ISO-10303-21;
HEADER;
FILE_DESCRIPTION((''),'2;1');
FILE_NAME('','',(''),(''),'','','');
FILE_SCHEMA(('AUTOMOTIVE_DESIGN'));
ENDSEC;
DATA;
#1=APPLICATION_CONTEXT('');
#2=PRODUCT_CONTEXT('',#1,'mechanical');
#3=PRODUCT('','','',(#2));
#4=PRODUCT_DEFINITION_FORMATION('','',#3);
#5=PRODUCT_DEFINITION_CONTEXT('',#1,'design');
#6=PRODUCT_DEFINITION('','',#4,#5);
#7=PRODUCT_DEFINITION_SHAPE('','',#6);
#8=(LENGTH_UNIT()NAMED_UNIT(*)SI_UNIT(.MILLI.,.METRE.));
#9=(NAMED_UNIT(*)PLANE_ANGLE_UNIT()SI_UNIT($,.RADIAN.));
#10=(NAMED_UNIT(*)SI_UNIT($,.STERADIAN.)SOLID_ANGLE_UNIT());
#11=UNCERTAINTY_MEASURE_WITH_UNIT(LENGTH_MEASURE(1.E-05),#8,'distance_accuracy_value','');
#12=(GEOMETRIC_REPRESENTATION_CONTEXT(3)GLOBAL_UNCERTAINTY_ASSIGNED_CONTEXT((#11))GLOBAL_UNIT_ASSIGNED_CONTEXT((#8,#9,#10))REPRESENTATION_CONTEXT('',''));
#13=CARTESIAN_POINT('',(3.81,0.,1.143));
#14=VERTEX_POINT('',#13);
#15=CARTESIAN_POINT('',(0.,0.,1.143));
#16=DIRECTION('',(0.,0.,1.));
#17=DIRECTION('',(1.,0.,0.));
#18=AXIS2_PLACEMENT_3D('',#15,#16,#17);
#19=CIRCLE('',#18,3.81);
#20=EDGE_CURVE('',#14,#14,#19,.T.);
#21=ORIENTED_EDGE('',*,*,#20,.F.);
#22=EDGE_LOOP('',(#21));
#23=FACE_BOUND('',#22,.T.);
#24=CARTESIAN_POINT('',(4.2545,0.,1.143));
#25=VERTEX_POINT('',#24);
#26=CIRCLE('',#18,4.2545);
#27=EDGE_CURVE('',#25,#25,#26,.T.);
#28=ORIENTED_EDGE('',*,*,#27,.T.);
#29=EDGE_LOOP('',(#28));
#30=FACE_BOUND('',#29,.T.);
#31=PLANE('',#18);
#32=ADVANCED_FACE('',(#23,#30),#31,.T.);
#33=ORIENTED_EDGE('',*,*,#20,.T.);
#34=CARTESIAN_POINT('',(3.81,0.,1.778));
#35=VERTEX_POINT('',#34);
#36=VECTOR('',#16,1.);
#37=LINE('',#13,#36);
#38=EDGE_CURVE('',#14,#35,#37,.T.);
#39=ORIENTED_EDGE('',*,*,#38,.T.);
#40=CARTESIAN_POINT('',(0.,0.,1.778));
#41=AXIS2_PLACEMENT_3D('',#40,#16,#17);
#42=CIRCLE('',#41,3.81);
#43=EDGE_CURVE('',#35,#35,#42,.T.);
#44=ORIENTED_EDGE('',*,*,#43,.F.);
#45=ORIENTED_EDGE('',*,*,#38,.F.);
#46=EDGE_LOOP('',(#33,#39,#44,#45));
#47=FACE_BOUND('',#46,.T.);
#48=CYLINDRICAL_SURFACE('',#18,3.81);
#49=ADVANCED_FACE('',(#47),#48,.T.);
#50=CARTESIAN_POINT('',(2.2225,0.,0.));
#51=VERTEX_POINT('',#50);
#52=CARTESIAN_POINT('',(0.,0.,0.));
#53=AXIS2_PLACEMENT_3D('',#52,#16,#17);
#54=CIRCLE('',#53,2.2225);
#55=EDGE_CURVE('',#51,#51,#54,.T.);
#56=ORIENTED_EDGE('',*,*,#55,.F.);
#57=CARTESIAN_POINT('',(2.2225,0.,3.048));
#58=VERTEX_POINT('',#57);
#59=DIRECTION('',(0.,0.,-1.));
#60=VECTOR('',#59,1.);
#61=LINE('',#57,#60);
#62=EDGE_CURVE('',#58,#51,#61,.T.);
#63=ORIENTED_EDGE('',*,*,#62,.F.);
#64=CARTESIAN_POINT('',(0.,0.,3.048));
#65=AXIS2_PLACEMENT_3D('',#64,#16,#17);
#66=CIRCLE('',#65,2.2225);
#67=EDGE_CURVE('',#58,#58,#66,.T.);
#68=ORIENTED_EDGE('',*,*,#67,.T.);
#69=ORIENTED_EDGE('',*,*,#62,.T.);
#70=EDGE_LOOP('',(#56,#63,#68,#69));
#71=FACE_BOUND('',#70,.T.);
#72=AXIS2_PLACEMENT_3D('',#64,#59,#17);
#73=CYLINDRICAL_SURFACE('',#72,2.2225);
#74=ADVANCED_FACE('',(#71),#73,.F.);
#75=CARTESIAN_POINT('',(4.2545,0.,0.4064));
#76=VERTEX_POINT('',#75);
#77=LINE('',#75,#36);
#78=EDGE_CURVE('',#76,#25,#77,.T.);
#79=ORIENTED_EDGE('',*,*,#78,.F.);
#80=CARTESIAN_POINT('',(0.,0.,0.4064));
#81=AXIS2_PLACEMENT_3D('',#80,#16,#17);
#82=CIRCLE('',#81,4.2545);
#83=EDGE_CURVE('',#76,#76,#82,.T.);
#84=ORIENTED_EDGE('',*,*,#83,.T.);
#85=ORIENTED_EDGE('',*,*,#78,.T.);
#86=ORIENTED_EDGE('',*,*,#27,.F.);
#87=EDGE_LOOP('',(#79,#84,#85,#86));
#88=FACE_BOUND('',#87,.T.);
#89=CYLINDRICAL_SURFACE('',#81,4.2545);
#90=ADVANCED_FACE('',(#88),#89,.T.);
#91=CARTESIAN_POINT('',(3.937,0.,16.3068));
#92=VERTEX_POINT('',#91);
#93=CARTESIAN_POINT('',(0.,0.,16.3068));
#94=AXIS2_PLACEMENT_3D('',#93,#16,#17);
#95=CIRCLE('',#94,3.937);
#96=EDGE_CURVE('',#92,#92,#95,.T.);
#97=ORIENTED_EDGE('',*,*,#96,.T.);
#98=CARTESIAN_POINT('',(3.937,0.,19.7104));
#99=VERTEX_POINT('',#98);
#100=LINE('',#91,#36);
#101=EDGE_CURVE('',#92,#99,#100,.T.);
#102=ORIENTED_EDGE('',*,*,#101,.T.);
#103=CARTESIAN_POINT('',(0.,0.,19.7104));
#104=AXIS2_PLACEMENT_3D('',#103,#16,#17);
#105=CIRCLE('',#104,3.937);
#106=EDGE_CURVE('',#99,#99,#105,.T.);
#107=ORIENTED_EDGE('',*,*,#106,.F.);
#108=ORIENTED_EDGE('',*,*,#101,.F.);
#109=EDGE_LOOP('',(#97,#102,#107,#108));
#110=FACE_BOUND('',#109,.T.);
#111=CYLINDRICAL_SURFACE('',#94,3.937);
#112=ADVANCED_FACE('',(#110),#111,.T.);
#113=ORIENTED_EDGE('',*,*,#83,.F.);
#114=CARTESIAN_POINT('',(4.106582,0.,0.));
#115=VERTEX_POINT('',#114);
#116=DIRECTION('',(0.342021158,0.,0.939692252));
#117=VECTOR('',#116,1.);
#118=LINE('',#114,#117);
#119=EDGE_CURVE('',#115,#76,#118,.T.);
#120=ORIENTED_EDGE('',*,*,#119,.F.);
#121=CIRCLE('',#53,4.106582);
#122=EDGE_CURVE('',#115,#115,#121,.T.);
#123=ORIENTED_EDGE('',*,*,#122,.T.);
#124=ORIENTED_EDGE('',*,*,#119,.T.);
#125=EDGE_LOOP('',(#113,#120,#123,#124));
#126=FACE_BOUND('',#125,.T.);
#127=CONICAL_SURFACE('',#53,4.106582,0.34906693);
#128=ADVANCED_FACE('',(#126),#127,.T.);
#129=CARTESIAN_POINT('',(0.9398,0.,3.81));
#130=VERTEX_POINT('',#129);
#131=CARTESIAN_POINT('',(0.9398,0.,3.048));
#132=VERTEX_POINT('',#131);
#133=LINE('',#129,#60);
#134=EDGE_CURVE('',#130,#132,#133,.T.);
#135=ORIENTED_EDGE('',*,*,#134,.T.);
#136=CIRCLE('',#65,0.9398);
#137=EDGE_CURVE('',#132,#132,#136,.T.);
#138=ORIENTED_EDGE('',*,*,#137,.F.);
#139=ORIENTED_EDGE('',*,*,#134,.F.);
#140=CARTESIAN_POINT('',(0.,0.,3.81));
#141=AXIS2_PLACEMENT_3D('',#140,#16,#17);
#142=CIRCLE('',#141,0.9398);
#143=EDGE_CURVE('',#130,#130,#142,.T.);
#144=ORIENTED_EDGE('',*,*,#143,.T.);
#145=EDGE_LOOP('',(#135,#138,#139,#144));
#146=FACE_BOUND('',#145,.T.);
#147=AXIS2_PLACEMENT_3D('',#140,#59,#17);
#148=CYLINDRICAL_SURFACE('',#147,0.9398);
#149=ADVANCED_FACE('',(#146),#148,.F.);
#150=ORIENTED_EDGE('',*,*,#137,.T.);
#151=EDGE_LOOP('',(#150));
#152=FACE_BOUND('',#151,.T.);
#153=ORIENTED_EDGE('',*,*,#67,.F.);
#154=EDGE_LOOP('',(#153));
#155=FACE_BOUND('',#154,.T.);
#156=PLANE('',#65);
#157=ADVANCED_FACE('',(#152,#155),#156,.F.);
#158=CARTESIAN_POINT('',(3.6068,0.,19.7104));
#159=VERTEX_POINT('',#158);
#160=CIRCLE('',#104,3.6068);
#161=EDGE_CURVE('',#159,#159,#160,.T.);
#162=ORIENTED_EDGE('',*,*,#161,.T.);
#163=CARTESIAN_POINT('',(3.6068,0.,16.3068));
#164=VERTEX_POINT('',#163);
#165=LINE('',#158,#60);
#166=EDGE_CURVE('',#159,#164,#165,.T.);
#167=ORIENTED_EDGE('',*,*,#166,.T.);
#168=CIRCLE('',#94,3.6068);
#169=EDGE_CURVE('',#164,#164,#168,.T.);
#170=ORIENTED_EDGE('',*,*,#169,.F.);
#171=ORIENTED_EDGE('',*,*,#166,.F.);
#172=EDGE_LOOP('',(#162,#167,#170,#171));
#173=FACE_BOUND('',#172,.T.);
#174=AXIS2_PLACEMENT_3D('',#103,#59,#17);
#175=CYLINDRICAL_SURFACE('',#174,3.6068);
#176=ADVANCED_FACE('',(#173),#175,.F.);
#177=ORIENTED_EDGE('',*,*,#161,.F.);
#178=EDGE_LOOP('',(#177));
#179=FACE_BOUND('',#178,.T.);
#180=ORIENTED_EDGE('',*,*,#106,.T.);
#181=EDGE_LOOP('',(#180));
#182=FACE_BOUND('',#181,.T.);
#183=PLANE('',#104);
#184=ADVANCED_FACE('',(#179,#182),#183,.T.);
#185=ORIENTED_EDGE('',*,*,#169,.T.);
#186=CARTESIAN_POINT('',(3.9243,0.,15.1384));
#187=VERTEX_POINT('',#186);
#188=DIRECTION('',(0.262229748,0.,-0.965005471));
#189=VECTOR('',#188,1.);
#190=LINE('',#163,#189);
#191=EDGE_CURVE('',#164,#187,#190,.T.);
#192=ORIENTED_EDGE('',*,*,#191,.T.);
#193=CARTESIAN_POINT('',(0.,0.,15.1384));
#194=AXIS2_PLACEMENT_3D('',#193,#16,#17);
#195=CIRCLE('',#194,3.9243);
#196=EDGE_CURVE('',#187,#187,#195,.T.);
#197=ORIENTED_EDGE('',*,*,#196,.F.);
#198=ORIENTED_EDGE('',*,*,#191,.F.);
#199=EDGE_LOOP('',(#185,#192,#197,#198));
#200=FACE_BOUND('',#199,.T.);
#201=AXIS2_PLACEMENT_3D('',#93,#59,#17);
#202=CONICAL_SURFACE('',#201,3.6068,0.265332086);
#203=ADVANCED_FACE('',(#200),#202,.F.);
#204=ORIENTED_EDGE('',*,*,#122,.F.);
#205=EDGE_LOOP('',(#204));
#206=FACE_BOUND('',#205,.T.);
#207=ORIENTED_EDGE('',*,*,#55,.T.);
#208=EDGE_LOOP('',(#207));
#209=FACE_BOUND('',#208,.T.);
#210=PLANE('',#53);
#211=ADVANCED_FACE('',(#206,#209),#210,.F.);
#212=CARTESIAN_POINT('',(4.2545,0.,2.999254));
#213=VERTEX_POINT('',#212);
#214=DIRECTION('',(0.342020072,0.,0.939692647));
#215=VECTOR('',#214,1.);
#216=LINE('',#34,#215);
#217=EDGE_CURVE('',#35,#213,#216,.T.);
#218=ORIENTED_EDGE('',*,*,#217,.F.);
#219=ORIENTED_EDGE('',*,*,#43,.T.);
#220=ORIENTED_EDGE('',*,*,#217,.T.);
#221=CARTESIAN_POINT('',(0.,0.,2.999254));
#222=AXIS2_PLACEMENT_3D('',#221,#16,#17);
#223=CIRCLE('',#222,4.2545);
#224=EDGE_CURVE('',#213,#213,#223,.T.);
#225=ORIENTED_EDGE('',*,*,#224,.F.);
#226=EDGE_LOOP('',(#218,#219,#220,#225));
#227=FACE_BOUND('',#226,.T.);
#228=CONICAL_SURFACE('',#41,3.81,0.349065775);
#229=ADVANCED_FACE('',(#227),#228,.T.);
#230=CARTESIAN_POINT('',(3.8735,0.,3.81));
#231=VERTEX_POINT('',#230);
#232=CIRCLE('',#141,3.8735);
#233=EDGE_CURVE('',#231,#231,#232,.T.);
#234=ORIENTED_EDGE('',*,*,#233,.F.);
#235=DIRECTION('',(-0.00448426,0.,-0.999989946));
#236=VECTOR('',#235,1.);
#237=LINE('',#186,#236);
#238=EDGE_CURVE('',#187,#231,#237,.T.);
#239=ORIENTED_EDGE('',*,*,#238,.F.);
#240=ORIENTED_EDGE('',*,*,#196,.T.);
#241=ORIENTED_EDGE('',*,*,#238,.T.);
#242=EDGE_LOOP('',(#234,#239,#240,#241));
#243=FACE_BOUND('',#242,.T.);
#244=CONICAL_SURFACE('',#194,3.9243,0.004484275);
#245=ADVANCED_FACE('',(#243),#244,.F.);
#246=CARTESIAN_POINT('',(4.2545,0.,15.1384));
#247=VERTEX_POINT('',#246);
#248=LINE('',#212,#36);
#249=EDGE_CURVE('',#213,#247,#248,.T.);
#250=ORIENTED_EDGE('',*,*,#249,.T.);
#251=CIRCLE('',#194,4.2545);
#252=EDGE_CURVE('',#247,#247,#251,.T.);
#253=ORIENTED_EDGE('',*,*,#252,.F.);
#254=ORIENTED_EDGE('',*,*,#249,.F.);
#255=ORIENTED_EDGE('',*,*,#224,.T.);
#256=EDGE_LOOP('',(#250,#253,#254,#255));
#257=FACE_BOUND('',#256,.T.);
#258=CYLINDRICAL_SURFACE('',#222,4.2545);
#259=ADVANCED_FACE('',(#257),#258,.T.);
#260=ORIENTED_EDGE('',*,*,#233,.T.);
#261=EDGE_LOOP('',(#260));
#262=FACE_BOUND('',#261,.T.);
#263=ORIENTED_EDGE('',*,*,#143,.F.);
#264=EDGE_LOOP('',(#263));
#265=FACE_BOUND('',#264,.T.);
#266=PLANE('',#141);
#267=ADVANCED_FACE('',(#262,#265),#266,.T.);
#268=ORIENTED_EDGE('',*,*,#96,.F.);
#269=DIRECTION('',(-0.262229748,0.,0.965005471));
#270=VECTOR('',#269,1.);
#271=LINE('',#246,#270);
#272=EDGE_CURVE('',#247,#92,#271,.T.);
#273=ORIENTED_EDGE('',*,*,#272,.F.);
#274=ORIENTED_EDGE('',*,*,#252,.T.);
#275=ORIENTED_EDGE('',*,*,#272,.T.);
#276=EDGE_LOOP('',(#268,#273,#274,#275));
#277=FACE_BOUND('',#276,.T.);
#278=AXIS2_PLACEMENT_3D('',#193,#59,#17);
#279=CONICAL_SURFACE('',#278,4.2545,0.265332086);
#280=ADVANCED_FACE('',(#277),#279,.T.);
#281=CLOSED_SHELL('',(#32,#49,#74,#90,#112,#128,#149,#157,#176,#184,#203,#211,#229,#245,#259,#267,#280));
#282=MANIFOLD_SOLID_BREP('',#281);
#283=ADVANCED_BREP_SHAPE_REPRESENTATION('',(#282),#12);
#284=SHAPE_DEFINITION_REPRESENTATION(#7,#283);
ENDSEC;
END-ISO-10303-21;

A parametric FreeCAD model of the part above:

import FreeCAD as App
import Part
import Sketcher

V = App.Vector
Q = App.Units.Quantity

doc = App.newDocument("Part")
params = doc.addObject("Spreadsheet::Sheet", "Params")
for row, (alias, value) in enumerate([
    ("sketch1_height", "0.12 in"),
    ("sketch1_height2", "0.03 in"),
    ("sketch1_width", "0.013 in"),
    ("sketch1_height3", "0.029 in"),
    ("sketch1_height4", "0.025 in"),
    ("revolution_angle", "360 deg"),
], start=1):
    params.set(f"A{row}", alias)
    params.set(f"B{row}", "=" + value)
    params.setAlias(f"B{row}", alias)

body = doc.addObject("PartDesign::Body", "Body")

sketch1 = body.newObject("Sketcher::SketchObject", "Sketch")
sketch1.AttachmentSupport = (doc.getObject("XZ_Plane"), [""])
sketch1.MapMode = "FlatFace"
sketch1.addGeometry(Part.LineSegment(V(2.22, 3.05, 0), V(2.22, 0, 0)), False)
sketch1.addGeometry(Part.LineSegment(V(2.22, 0, 0), V(4.11, 0, 0)), False)
sketch1.addGeometry(Part.LineSegment(V(4.11, 0, 0), V(4.25, 0.41, 0)), False)
sketch1.addGeometry(Part.LineSegment(V(4.25, 0.41, 0), V(4.25, 1.14, 0)), False)
sketch1.addGeometry(Part.LineSegment(V(4.25, 1.14, 0), V(3.81, 1.14, 0)), False)
sketch1.addGeometry(Part.LineSegment(V(3.81, 1.14, 0), V(3.81, 1.78, 0)), False)
sketch1.addGeometry(Part.LineSegment(V(3.81, 1.78, 0), V(4.25, 3, 0)), False)
sketch1.addGeometry(Part.LineSegment(V(4.25, 3, 0), V(4.25, 15.14, 0)), False)
sketch1.addGeometry(Part.LineSegment(V(4.25, 15.14, 0), V(3.94, 16.31, 0)), False)
sketch1.addGeometry(Part.LineSegment(V(3.94, 16.31, 0), V(3.94, 19.71, 0)), False)
sketch1.addGeometry(Part.LineSegment(V(3.94, 19.71, 0), V(3.61, 19.71, 0)), False)
sketch1.addGeometry(Part.LineSegment(V(3.61, 19.71, 0), V(3.61, 16.31, 0)), False)
sketch1.addGeometry(Part.LineSegment(V(3.61, 16.31, 0), V(3.92, 15.14, 0)), False)
sketch1.addGeometry(Part.LineSegment(V(3.92, 15.14, 0), V(3.87, 3.81, 0)), False)
sketch1.addGeometry(Part.LineSegment(V(3.87, 3.81, 0), V(0.94, 3.81, 0)), False)
sketch1.addGeometry(Part.LineSegment(V(0.94, 3.81, 0), V(0.94, 3.05, 0)), False)
sketch1.addGeometry(Part.LineSegment(V(0.94, 3.05, 0), V(2.22, 3.05, 0)), False)
sketch1.addConstraint(Sketcher.Constraint("Coincident", 0, 2, 1, 1))
sketch1.addConstraint(Sketcher.Constraint("Coincident", 1, 2, 2, 1))
sketch1.addConstraint(Sketcher.Constraint("Coincident", 2, 2, 3, 1))
sketch1.addConstraint(Sketcher.Constraint("Coincident", 3, 2, 4, 1))
sketch1.addConstraint(Sketcher.Constraint("Coincident", 4, 2, 5, 1))
sketch1.addConstraint(Sketcher.Constraint("Coincident", 5, 2, 6, 1))
sketch1.addConstraint(Sketcher.Constraint("Coincident", 6, 2, 7, 1))
sketch1.addConstraint(Sketcher.Constraint("Coincident", 7, 2, 8, 1))
sketch1.addConstraint(Sketcher.Constraint("Coincident", 8, 2, 9, 1))
sketch1.addConstraint(Sketcher.Constraint("Coincident", 9, 2, 10, 1))
sketch1.addConstraint(Sketcher.Constraint("Coincident", 10, 2, 11, 1))
sketch1.addConstraint(Sketcher.Constraint("Coincident", 11, 2, 12, 1))
sketch1.addConstraint(Sketcher.Constraint("Coincident", 12, 2, 13, 1))
sketch1.addConstraint(Sketcher.Constraint("Coincident", 13, 2, 14, 1))
sketch1.addConstraint(Sketcher.Constraint("Coincident", 14, 2, 15, 1))
sketch1.addConstraint(Sketcher.Constraint("Coincident", 15, 2, 16, 1))
sketch1.addConstraint(Sketcher.Constraint("Coincident", 16, 2, 0, 1))
sketch1.addConstraint(Sketcher.Constraint("Vertical", 0))
sketch1.addConstraint(Sketcher.Constraint("Horizontal", 1))
sketch1.addConstraint(Sketcher.Constraint("Vertical", 3))
sketch1.addConstraint(Sketcher.Constraint("Horizontal", 4))
sketch1.addConstraint(Sketcher.Constraint("Vertical", 5))
sketch1.addConstraint(Sketcher.Constraint("Vertical", 7))
sketch1.addConstraint(Sketcher.Constraint("Vertical", 9))
sketch1.addConstraint(Sketcher.Constraint("Horizontal", 10))
sketch1.addConstraint(Sketcher.Constraint("Vertical", 11))
sketch1.addConstraint(Sketcher.Constraint("Horizontal", 14))
sketch1.addConstraint(Sketcher.Constraint("Vertical", 15))
sketch1.addConstraint(Sketcher.Constraint("Horizontal", 16))
sketch1.addConstraint(Sketcher.Constraint("PointOnObject", 0, 2, -1))
sketch1.addConstraint(Sketcher.Constraint("Parallel", 2, 6))
sketch1.addConstraint(Sketcher.Constraint("Parallel", 8, 12))
sketch1.addConstraint(Sketcher.Constraint("Horizontal", 8, 2, 11, 2))
sketch1.addConstraint(Sketcher.Constraint("Horizontal", 7, 2, 12, 2))
sketch1.addConstraint(Sketcher.Constraint("Vertical", 3, 2, 6, 2))
sketch1.addConstraint(Sketcher.Constraint("Angle", 6, Q("70.000004 deg")))
sketch1.addConstraint(Sketcher.Constraint("DistanceY", 0, 2, 0, 1, Q("0.12 in")))
sketch1.addConstraint(Sketcher.Constraint("DistanceY", 15, 2, 15, 1, Q("0.03 in")))
sketch1.addConstraint(Sketcher.Constraint("DistanceX", 10, 2, 10, 1, Q("0.013 in")))
sketch1.addConstraint(Sketcher.Constraint("DistanceY", 3, 1, 3, 2, Q("0.029 in")))
sketch1.addConstraint(Sketcher.Constraint("DistanceY", 5, 1, 5, 2, Q("0.025 in")))
sketch1.addConstraint(Sketcher.Constraint("DistanceY", 9, 1, 9, 2, Q("0.134 in")))
sketch1.addConstraint(Sketcher.Constraint("DistanceX", -1, 1, 4, 2, Q("0.15 in")))
sketch1.addConstraint(Sketcher.Constraint("DistanceY", -1, 1, 5, 2, Q("0.07 in")))
sketch1.addConstraint(Sketcher.Constraint("DistanceX", 0, 2, 2, 2, Q("0.08 in")))
sketch1.addConstraint(Sketcher.Constraint("DistanceY", 2, 2, 7, 2, Q("0.58 in")))
sketch1.addConstraint(Sketcher.Constraint("DistanceY", 7, 2, 9, 2, Q("0.18 in")))
sketch1.addConstraint(Sketcher.Constraint("DistanceX", 4, 2, 4, 1, Q("0.0175 in")))
sketch1.addConstraint(Sketcher.Constraint("DistanceX", 14, 2, 14, 1, Q("0.1155 in")))
sketch1.addConstraint(Sketcher.Constraint("DistanceX", 16, 1, 16, 2, Q("0.0505 in")))
sketch1.addConstraint(Sketcher.Constraint("DistanceX", -1, 1, 8, 2, Q("0.155 in")))
sketch1.setExpression("Constraints[36]", "Params.sketch1_height")
sketch1.setExpression("Constraints[37]", "Params.sketch1_height2")
sketch1.setExpression("Constraints[38]", "Params.sketch1_width")
sketch1.setExpression("Constraints[39]", "Params.sketch1_height3")
sketch1.setExpression("Constraints[40]", "Params.sketch1_height4")
revolution = body.newObject("PartDesign::Revolution", "Revolution")
revolution.Profile = sketch1
revolution.ReferenceAxis = (sketch1, ["V_Axis"])
revolution.setExpression("Angle", "Params.revolution_angle")
body2 = doc.addObject("PartDesign::Body", "Body001")
doc.recompute()

body2.BaseFeature = body
doc.recompute()
body.Visibility = False

doc.recompute()
